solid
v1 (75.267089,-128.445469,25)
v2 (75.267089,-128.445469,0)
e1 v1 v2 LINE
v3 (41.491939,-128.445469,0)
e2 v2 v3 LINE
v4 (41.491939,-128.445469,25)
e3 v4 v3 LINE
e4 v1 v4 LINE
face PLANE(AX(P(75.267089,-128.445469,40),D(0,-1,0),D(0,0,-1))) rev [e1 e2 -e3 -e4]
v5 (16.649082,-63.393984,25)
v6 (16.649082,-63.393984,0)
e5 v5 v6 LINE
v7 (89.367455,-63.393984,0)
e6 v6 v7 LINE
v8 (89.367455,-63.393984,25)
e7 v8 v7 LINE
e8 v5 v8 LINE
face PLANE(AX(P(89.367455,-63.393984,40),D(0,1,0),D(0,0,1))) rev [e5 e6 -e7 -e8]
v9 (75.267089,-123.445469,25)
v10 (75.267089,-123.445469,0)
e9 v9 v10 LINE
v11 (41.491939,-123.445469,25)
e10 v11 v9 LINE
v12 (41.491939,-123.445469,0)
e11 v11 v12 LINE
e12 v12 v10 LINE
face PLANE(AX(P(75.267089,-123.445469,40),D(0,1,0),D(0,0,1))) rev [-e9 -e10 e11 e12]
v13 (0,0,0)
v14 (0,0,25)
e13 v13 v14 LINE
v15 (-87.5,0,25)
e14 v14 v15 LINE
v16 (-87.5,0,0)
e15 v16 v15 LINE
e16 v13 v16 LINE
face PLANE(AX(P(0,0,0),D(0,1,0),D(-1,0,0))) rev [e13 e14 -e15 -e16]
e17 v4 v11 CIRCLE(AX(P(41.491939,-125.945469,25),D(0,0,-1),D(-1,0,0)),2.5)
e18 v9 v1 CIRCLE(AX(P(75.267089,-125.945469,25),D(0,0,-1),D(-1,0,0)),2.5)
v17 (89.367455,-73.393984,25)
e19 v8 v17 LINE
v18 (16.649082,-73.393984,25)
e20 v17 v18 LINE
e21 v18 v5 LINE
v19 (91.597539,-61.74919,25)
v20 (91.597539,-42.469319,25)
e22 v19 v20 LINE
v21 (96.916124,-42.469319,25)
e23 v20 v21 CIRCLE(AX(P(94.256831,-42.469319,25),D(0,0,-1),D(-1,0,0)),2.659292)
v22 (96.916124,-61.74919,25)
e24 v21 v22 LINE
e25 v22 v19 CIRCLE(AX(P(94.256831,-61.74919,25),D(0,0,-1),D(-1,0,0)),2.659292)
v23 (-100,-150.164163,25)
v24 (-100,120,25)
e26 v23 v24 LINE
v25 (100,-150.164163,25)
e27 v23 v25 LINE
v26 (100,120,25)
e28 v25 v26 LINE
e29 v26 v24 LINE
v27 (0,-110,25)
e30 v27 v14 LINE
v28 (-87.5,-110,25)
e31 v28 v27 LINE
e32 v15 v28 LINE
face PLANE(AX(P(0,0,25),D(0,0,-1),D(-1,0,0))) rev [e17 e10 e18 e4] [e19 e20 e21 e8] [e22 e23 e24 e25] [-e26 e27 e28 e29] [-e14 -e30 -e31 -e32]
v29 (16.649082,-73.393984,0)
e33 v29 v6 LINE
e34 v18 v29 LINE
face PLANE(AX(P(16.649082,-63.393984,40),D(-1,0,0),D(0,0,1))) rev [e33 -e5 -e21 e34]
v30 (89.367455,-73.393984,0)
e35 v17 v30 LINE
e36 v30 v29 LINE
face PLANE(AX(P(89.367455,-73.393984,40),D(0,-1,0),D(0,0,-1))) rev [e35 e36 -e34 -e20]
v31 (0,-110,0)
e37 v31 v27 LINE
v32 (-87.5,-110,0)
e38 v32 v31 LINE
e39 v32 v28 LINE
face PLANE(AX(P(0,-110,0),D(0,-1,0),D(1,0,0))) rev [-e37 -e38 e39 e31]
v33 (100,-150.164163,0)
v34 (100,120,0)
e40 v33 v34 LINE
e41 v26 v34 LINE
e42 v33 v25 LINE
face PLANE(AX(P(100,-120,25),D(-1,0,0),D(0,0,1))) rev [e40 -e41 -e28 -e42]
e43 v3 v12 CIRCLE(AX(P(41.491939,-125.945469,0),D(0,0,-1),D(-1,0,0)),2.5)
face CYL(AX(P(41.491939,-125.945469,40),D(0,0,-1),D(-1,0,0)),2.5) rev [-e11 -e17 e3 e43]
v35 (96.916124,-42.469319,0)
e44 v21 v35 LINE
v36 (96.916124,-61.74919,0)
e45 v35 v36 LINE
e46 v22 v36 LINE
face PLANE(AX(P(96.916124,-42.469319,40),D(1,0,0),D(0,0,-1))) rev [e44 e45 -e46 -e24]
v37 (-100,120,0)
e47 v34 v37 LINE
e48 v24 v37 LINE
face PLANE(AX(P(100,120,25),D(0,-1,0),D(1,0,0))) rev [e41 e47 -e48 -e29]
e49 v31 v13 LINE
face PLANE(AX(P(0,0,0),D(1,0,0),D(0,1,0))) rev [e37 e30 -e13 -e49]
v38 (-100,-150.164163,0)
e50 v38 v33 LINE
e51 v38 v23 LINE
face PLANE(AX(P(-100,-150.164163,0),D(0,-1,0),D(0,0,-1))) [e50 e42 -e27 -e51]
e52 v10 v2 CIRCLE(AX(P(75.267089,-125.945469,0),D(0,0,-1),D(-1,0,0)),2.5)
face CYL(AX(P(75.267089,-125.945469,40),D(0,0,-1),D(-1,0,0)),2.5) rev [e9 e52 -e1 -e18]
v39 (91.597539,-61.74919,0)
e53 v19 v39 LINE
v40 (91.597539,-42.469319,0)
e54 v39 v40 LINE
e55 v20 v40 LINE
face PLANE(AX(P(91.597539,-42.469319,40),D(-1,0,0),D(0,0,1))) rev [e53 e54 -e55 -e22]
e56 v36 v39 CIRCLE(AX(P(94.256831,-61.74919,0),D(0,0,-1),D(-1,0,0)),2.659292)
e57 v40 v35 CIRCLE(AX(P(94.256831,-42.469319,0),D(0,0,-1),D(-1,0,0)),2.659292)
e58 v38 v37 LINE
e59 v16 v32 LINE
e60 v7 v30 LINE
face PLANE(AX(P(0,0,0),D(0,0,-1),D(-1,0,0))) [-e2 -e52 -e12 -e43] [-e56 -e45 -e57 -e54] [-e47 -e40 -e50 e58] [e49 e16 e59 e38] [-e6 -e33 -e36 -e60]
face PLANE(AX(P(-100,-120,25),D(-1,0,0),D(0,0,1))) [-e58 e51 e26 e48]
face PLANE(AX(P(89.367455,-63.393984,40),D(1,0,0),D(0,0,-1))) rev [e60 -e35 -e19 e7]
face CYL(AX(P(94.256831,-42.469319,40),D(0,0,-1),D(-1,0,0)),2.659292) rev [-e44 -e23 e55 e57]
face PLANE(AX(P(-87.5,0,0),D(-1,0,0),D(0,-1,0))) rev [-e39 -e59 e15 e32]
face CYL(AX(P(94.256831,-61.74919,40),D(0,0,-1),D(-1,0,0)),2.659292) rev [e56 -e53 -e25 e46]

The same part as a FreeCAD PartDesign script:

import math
import FreeCAD as App
import Part
import Sketcher
Q = App.Units.Quantity


def add_polygon(sketch, points):
    """Adds a closed chain of lines whose ends are joined by coincident constraints."""
    first, n = sketch.GeometryCount, len(points)
    for a, b in zip(points, points[1:] + points[:1]):
        sketch.addGeometry(Part.LineSegment(App.Vector(*a, 0), App.Vector(*b, 0)), False)
    for i in range(n):
        sketch.addConstraint(Sketcher.Constraint("Coincident", first + i, 2, first + (i + 1) % n, 1))

doc = App.newDocument("Part")
body = doc.addObject("PartDesign::Body", "Body")

# Sketch on XY plane
sketch1 = doc.addObject("Sketcher::SketchObject", "Sketch")
body.addObject(sketch1)
sketch1.AttachmentSupport = (doc.XY_Plane, [""])
sketch1.MapMode = "FlatFace"
add_polygon(sketch1, [(-100, 120), (-100, -120), (100, -120), (100, 120)])  # lines 0-3
sketch1.addConstraint([
    Sketcher.Constraint("Vertical", 0),
    Sketcher.Constraint("Horizontal", 1),
    Sketcher.Constraint("Vertical", 2),
    Sketcher.Constraint("Horizontal", 3),
    Sketcher.Constraint("Symmetric", 0, 2, 2, 2, -1, 1),
    Sketcher.Constraint("DistanceX", 1, 1, 1, 2, Q("200 mm")),
    Sketcher.Constraint("DistanceY", 0, 2, 0, 1, Q("240 mm")),
])
pad1 = doc.addObject("PartDesign::Pad", "Pad")
body.addObject(pad1)
pad1.Profile = sketch1
pad1.Length = 25

# Sketch on XY plane
sketch2 = doc.addObject("Sketcher::SketchObject", "Sketch001")
body.addObject(sketch2)
sketch2.AttachmentSupport = (doc.XY_Plane, [""])
sketch2.MapMode = "FlatFace"
sketch2.AttachmentOffset = App.Placement(App.Vector(0, 0, 25), App.Rotation())
add_polygon(sketch2, [(-88, 0), (-88, -110), (0, -110), (0, 0)])  # lines 0-3
sketch2.addConstraint([
    Sketcher.Constraint("Vertical", 0),
    Sketcher.Constraint("Horizontal", 1),
    Sketcher.Constraint("Vertical", 2),
    Sketcher.Constraint("Horizontal", 3),
    Sketcher.Constraint("Coincident", 2, 2, -1, 1),
    Sketcher.Constraint("DistanceY", 0, 2, 0, 1, Q("110 mm")),
    Sketcher.Constraint("DistanceX", 1, 1, 1, 2, Q("87.5 mm")),
])
pocket1 = doc.addObject("PartDesign::Pocket", "Pocket")
body.addObject(pocket1)
pocket1.Profile = sketch2
pocket1.Length = 25

# Sketch on XY plane
sketch3 = doc.addObject("Sketcher::SketchObject", "Sketch002")
body.addObject(sketch3)
sketch3.AttachmentSupport = (doc.XY_Plane, [""])
sketch3.MapMode = "FlatFace"
sketch3.AttachmentOffset = App.Placement(App.Vector(0, 0, 25), App.Rotation())
add_polygon(sketch3, [(-100, -120), (-100, -150), (100, -150), (100, -120)])  # lines 0-3
sketch3.addConstraint([
    Sketcher.Constraint("Vertical", 0),
    Sketcher.Constraint("Horizontal", 1),
    Sketcher.Constraint("Vertical", 2),
    Sketcher.Constraint("Horizontal", 3),
    Sketcher.Constraint("DistanceX", 1, 1, 1, 2, Q("200 mm")),
    Sketcher.Constraint("DistanceX", 0, 2, -1, 1, Q("100 mm")),
    Sketcher.Constraint("DistanceY", 2, 2, -1, 1, Q("120 mm")),
    Sketcher.Constraint("DistanceY", 0, 2, 0, 1, Q("30.164163 mm")),
])
pad2 = doc.addObject("PartDesign::Pad", "Pad001")
body.addObject(pad2)
pad2.Profile = sketch3
pad2.Length = 25
pad2.Reversed = True

# Sketch on XY plane
sketch4 = doc.addObject("Sketcher::SketchObject", "Sketch003")
body.addObject(sketch4)
sketch4.AttachmentSupport = (doc.XY_Plane, [""])
sketch4.MapMode = "FlatFace"
sketch4.addGeometry([
    Part.LineSegment(App.Vector(91.6, -61.7, 0), App.Vector(91.6, -42.5, 0)),
    Part.ArcOfCircle(Part.Circle(App.Vector(94.3, -42.5, 0), App.Vector(0, 0, 1), 2.7), math.radians(0), math.radians(180)),
    Part.LineSegment(App.Vector(96.9, -42.5, 0), App.Vector(96.9, -61.7, 0)),
    Part.ArcOfCircle(Part.Circle(App.Vector(94.3, -61.7, 0), App.Vector(0, 0, 1), 2.7), math.radians(-180), math.radians(0)),
], False)
sketch4.addConstraint([
    Sketcher.Constraint("Tangent", 0, 2, 1, 2),
    Sketcher.Constraint("Tangent", 1, 1, 2, 1),
    Sketcher.Constraint("Tangent", 2, 2, 3, 2),
    Sketcher.Constraint("Tangent", 3, 1, 0, 1),
    Sketcher.Constraint("Vertical", 0),
    Sketcher.Constraint("Vertical", 2),
    Sketcher.Constraint("Radius", 1, Q("2.659292 mm")),
    Sketcher.Constraint("DistanceY", 0, 1, 0, 2, Q("19.27987 mm")),
    Sketcher.Constraint("DistanceX", -1, 1, 1, 3, Q("94.256831 mm")),
    Sketcher.Constraint("DistanceY", 1, 3, -1, 1, Q("42.469319 mm")),
])
pocket2 = doc.addObject("PartDesign::Pocket", "Pocket001")
body.addObject(pocket2)
pocket2.Profile = sketch4
pocket2.Length = 40
pocket2.Reversed = True

# Sketch on XY plane
sketch5 = doc.addObject("Sketcher::SketchObject", "Sketch004")
body.addObject(sketch5)
sketch5.AttachmentSupport = (doc.XY_Plane, [""])
sketch5.MapMode = "FlatFace"
sketch5.addGeometry([
    Part.LineSegment(App.Vector(41.5, -123.4, 0), App.Vector(75.3, -123.4, 0)),
    Part.ArcOfCircle(Part.Circle(App.Vector(75.3, -125.9, 0), App.Vector(0, 0, 1), 2.5), math.radians(-90), math.radians(90)),
    Part.LineSegment(App.Vector(75.3, -128.4, 0), App.Vector(41.5, -128.4, 0)),
    Part.ArcOfCircle(Part.Circle(App.Vector(41.5, -125.9, 0), App.Vector(0, 0, 1), 2.5), math.radians(90), math.radians(270)),
], False)
sketch5.addConstraint([
    Sketcher.Constraint("Tangent", 0, 2, 1, 2),
    Sketcher.Constraint("Tangent", 1, 1, 2, 1),
    Sketcher.Constraint("Tangent", 2, 2, 3, 2),
    Sketcher.Constraint("Tangent", 3, 1, 0, 1),
    Sketcher.Constraint("Horizontal", 0),
    Sketcher.Constraint("Horizontal", 2),
    Sketcher.Constraint("Radius", 1, Q("2.5 mm")),
    Sketcher.Constraint("DistanceX", 0, 1, 0, 2, Q("33.77515 mm")),
    Sketcher.Constraint("DistanceX", -1, 1, 1, 3, Q("75.267089 mm")),
    Sketcher.Constraint("DistanceY", 1, 3, -1, 1, Q("125.945469 mm")),
])
pocket3 = doc.addObject("PartDesign::Pocket", "Pocket002")
body.addObject(pocket3)
pocket3.Profile = sketch5
pocket3.Length = 40
pocket3.Reversed = True

# Sketch on XY plane
sketch6 = doc.addObject("Sketcher::SketchObject", "Sketch005")
body.addObject(sketch6)
sketch6.AttachmentSupport = (doc.XY_Plane, [""])
sketch6.MapMode = "FlatFace"
add_polygon(sketch6, [(89, -63), (89, -73), (17, -73), (17, -63)])  # lines 0-3
sketch6.addConstraint([
    Sketcher.Constraint("Vertical", 0),
    Sketcher.Constraint("Horizontal", 1),
    Sketcher.Constraint("Vertical", 2),
    Sketcher.Constraint("Horizontal", 3),
    Sketcher.Constraint("DistanceY", 0, 2, 0, 1, Q("10 mm")),
    Sketcher.Constraint("DistanceX", 1, 2, 1, 1, Q("72.718373 mm")),
    Sketcher.Constraint("DistanceX", -1, 1, 1, 2, Q("16.649082 mm")),
    Sketcher.Constraint("DistanceY", 0, 2, -1, 1, Q("73.393984 mm")),
])
pocket4 = doc.addObject("PartDesign::Pocket", "Pocket003")
body.addObject(pocket4)
pocket4.Profile = sketch6
pocket4.Length = 40
pocket4.Reversed = True

doc.recompute()
